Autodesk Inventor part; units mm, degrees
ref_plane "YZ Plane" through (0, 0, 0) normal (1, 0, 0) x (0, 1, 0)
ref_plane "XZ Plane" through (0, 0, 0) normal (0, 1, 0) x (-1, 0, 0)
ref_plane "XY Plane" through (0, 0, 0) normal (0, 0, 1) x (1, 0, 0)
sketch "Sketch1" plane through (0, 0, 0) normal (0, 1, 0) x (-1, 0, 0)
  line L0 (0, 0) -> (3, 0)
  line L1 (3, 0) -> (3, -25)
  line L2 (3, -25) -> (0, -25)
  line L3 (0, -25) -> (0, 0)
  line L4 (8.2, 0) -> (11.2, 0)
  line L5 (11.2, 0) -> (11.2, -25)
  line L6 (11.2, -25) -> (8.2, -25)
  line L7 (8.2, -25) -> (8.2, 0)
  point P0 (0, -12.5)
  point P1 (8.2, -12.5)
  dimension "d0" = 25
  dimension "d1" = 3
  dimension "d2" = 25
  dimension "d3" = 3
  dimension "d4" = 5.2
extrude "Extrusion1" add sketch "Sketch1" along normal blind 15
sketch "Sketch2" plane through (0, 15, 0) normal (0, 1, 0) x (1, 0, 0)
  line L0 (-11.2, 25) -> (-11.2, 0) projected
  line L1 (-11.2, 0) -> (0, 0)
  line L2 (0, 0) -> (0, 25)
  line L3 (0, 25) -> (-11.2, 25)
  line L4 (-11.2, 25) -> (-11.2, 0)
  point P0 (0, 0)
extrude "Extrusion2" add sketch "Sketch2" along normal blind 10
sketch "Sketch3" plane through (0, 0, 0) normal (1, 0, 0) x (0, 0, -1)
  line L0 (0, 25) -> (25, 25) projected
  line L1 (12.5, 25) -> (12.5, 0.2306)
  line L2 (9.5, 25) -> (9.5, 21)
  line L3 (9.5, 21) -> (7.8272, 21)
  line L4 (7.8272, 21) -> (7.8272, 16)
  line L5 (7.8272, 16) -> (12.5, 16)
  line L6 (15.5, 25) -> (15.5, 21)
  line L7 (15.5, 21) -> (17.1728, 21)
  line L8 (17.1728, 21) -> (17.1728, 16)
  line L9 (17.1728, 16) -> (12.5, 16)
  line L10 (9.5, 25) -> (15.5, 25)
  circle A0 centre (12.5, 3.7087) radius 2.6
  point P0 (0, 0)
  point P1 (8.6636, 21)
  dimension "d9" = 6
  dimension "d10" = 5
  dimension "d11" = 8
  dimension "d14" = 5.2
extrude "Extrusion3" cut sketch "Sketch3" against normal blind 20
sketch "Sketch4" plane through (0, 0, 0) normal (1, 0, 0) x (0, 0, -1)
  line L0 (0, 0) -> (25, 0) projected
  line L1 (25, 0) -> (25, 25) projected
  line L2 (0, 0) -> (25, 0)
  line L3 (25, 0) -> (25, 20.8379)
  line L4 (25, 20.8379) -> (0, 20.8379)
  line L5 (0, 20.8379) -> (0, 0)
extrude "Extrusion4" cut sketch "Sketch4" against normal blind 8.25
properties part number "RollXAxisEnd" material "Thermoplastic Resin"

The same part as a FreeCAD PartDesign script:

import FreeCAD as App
import Part
import Sketcher


def add_polygon(sketch, points):
    """Adds a closed chain of lines whose ends are joined by coincident constraints."""
    first, n = sketch.GeometryCount, len(points)
    for a, b in zip(points, points[1:] + points[:1]):
        sketch.addGeometry(Part.LineSegment(App.Vector(*a, 0), App.Vector(*b, 0)), False)
    for i in range(n):
        sketch.addConstraint(Sketcher.Constraint("Coincident", first + i, 2, first + (i + 1) % n, 1))

doc = App.newDocument("Part")
body = doc.addObject("PartDesign::Body", "Body")
body.AllowCompound = True

sketch1 = doc.addObject("Sketcher::SketchObject", "Sketch")
body.addObject(sketch1)
sketch1.AttachmentSupport = (doc.XZ_Plane, [""])
sketch1.MapMode = "FlatFace"
add_polygon(sketch1, [(-3, 0), (0, 0), (0, -25), (-3, -25)])
add_polygon(sketch1, [(-11.2, 0), (-8.2, 0), (-8.2, -25), (-11.2, -25)])
sketch1.addConstraint(Sketcher.Constraint("Horizontal", 0))
sketch1.addConstraint(Sketcher.Constraint("Vertical", 1))
sketch1.addConstraint(Sketcher.Constraint("Horizontal", 2))
sketch1.addConstraint(Sketcher.Constraint("Vertical", 3))
sketch1.addConstraint(Sketcher.Constraint("Horizontal", 4))
sketch1.addConstraint(Sketcher.Constraint("Vertical", 5))
sketch1.addConstraint(Sketcher.Constraint("Horizontal", 6))
sketch1.addConstraint(Sketcher.Constraint("Vertical", 7))
sketch1.addConstraint(Sketcher.Constraint("Coincident", 0, 2, -1, 1))
sketch1.addConstraint(Sketcher.Constraint("PointOnObject", 4, 2, -1))
sketch1.addConstraint(Sketcher.Constraint("Horizontal", 2, 2, 5, 2))
sketch1.addConstraint(Sketcher.Constraint("Equal", 2, 4))
sketch1.addConstraint(Sketcher.Constraint("DistanceX", 0, 1, 0, 2, 3.0))
sketch1.addConstraint(Sketcher.Constraint("DistanceY", 1, 2, 1, 1, 25.0))
sketch1.addConstraint(Sketcher.Constraint("DistanceX", 4, 2, 3, 2, 5.2))
pad1 = doc.addObject("PartDesign::Pad", "Pad")
body.addObject(pad1)
pad1.Profile = sketch1
pad1.Length = 15
pad1.Reversed = True

sketch2 = doc.addObject("Sketcher::SketchObject", "Sketch001")
body.addObject(sketch2)
sketch2.AttachmentSupport = (doc.XZ_Plane, [""])
sketch2.MapMode = "FlatFace"
sketch2.AttachmentOffset = App.Placement(App.Vector(0, 0, -15), App.Rotation())
add_polygon(sketch2, [(0, -25), (-11, -25), (-11, 0), (0, 0)])
sketch2.addConstraint(Sketcher.Constraint("Horizontal", 0))
sketch2.addConstraint(Sketcher.Constraint("Vertical", 1))
sketch2.addConstraint(Sketcher.Constraint("Horizontal", 2))
sketch2.addConstraint(Sketcher.Constraint("Vertical", 3))
sketch2.addConstraint(Sketcher.Constraint("Coincident", 2, 2, -1, 1))
sketch2.addConstraint(Sketcher.Constraint("DistanceY", 1, 1, 1, 2, 25.0))
sketch2.addConstraint(Sketcher.Constraint("DistanceX", 0, 2, 0, 1, 11.2))
pad2 = doc.addObject("PartDesign::Pad", "Pad001")
body.addObject(pad2)
pad2.Profile = sketch2
pad2.Length = 10
pad2.Reversed = True

sketch3 = doc.addObject("Sketcher::SketchObject", "Sketch002")
body.addObject(sketch3)
sketch3.AttachmentSupport = (doc.YZ_Plane, [""])
sketch3.MapMode = "FlatFace"
sketch3.addGeometry(Part.Circle(App.Vector(3.7, -12.5, 0), App.Vector(0, 0, 1), 2.6), False)
add_polygon(sketch3, [(25, -9.5), (21, -9.5), (21, -7.8), (16, -7.8), (16, -17.2), (21, -17.2), (21, -15.5), (25, -15.5)])
sketch3.addConstraint(Sketcher.Constraint("Horizontal", 1))
sketch3.addConstraint(Sketcher.Constraint("Vertical", 2))
sketch3.addConstraint(Sketcher.Constraint("Horizontal", 3))
sketch3.addConstraint(Sketcher.Constraint("Vertical", 4))
sketch3.addConstraint(Sketcher.Constraint("Horizontal", 5))
sketch3.addConstraint(Sketcher.Constraint("Vertical", 6))
sketch3.addConstraint(Sketcher.Constraint("Horizontal", 7))
sketch3.addConstraint(Sketcher.Constraint("Vertical", 8))
sketch3.addConstraint(Sketcher.Constraint("Vertical", 2, 2, 5, 2))
sketch3.addConstraint(Sketcher.Constraint("Equal", 2, 6))
sketch3.addConstraint(Sketcher.Constraint("Diameter", 0, 5.2))
sketch3.addConstraint(Sketcher.Constraint("DistanceX", 3, 2, 3, 1, 5.0))
sketch3.addConstraint(Sketcher.Constraint("DistanceY", 8, 1, 8, 2, 6.0))
sketch3.addConstraint(Sketcher.Constraint("DistanceX", 1, 2, 1, 1, 4.0))
sketch3.addConstraint(Sketcher.Constraint("DistanceX", -1, 1, 1, 2, 21.0))
sketch3.addConstraint(Sketcher.Constraint("DistanceY", 0, 3, 1, 2, 3.0))
sketch3.addConstraint(Sketcher.Constraint("DistanceY", 0, 3, -1, 1, 12.5))
sketch3.addConstraint(Sketcher.Constraint("DistanceY", 2, 1, 2, 2, 1.6728))
sketch3.addConstraint(Sketcher.Constraint("DistanceX", -1, 1, 0, 3, 3.7087))
pocket1 = doc.addObject("PartDesign::Pocket", "Pocket")
body.addObject(pocket1)
pocket1.Profile = sketch3
pocket1.Length = 20

sketch4 = doc.addObject("Sketcher::SketchObject", "Sketch003")
body.addObject(sketch4)
sketch4.AttachmentSupport = (doc.YZ_Plane, [""])
sketch4.MapMode = "FlatFace"
add_polygon(sketch4, [(21, 0), (0, 0), (0, -25), (21, -25)])
sketch4.addConstraint(Sketcher.Constraint("Horizontal", 0))
sketch4.addConstraint(Sketcher.Constraint("Vertical", 1))
sketch4.addConstraint(Sketcher.Constraint("Horizontal", 2))
sketch4.addConstraint(Sketcher.Constraint("Vertical", 3))
sketch4.addConstraint(Sketcher.Constraint("Coincident", 0, 2, -1, 1))
sketch4.addConstraint(Sketcher.Constraint("DistanceY", 1, 2, 1, 1, 25.0))
sketch4.addConstraint(Sketcher.Constraint("DistanceX", 0, 2, 0, 1, 20.838))
pocket2 = doc.addObject("PartDesign::Pocket", "Pocket001")
body.addObject(pocket2)
pocket2.Profile = sketch4
pocket2.Length = 8.25

doc.recompute()
